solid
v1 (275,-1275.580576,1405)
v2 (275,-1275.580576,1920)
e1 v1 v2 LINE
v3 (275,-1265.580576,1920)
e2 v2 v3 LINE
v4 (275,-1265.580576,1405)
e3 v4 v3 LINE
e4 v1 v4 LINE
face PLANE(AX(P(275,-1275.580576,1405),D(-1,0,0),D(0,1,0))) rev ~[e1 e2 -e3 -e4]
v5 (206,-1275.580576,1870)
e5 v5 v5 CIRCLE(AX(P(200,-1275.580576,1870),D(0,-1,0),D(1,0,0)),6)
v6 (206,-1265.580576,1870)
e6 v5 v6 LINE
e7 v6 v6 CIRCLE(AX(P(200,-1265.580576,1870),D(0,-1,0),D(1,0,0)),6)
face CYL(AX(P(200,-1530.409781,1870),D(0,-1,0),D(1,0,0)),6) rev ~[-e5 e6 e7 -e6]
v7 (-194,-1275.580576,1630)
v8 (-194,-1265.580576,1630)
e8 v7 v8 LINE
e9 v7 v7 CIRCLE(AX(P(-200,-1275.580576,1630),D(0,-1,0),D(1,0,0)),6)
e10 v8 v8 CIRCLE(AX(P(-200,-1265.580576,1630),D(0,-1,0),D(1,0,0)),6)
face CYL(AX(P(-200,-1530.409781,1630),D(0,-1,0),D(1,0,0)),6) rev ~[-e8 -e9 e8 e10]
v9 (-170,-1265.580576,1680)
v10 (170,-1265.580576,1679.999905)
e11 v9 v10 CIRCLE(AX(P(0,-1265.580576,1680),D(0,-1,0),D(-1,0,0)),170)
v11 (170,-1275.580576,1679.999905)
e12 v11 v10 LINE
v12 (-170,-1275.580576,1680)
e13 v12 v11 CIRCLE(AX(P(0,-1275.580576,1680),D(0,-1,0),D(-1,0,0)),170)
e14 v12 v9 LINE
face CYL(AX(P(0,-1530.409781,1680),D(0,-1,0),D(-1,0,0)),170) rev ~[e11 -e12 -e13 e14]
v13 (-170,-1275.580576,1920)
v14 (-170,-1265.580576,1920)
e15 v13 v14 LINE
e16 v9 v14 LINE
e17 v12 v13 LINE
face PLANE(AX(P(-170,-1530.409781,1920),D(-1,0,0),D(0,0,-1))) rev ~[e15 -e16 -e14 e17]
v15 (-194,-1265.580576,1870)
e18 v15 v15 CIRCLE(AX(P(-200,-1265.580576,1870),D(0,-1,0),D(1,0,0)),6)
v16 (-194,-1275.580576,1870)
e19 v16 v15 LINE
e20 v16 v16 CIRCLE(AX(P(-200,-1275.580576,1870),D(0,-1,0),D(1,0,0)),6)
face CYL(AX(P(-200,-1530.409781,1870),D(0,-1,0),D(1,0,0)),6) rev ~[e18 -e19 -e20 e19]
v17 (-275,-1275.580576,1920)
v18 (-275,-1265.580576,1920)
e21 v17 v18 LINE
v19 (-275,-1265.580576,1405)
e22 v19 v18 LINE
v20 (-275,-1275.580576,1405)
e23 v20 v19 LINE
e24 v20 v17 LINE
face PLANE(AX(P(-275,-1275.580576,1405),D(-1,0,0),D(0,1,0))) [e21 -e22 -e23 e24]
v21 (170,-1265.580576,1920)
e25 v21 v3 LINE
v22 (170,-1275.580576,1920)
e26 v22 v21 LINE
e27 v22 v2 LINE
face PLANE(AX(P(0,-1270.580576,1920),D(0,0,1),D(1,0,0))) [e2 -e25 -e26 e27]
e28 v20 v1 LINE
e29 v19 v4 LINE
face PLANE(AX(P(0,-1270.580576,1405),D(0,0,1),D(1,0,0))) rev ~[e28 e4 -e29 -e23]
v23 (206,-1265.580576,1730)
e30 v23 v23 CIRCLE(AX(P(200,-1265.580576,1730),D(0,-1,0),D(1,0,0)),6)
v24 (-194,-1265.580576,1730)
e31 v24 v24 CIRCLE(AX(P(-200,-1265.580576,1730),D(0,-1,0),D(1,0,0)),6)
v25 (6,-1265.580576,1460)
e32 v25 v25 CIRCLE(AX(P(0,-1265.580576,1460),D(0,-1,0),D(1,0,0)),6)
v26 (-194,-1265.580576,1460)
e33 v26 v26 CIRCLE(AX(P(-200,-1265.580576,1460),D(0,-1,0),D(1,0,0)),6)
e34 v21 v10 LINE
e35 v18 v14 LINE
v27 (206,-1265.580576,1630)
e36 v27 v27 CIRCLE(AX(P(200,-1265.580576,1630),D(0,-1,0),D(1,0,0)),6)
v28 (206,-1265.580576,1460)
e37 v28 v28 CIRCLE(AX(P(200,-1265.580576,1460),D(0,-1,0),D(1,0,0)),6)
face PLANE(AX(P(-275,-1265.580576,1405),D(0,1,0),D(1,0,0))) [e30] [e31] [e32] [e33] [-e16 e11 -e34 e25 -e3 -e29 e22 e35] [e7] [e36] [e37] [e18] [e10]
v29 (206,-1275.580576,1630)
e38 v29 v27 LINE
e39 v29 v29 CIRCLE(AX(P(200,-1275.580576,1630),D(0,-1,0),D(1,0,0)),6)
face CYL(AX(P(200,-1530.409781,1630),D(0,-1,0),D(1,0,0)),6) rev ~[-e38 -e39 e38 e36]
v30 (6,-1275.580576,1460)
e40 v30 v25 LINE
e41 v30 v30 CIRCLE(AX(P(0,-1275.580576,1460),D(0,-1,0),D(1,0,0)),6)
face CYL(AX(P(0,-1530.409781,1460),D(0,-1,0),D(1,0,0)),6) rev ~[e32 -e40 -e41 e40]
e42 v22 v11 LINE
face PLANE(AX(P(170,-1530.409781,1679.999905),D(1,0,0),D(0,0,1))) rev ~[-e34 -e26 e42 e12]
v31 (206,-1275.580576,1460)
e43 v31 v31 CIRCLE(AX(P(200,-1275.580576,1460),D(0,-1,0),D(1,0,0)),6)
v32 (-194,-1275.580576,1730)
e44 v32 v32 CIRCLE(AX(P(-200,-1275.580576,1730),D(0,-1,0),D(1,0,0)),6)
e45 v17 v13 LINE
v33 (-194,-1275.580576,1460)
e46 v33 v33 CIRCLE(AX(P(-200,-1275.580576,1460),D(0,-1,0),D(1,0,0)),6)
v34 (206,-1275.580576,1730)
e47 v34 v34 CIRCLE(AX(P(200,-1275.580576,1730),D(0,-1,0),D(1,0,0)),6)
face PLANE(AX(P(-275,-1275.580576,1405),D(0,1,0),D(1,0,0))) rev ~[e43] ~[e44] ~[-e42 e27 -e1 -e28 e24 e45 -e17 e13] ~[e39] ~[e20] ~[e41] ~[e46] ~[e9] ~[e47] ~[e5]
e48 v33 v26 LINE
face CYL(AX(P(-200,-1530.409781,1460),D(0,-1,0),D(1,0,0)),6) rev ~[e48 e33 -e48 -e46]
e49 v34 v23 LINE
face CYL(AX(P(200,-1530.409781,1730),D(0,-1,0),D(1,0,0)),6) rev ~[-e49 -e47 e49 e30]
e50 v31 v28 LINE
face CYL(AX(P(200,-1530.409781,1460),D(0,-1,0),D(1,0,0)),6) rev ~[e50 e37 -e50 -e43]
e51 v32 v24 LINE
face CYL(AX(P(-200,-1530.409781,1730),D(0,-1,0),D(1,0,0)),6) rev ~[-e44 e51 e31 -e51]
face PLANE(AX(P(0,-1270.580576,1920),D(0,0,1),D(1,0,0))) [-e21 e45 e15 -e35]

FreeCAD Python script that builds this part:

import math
import FreeCAD as App
import Part
import Sketcher

doc = App.newDocument("Part")
body = doc.addObject("PartDesign::Body", "Body")
body.AllowCompound = True

sketch1 = doc.addObject("Sketcher::SketchObject", "Sketch")
body.addObject(sketch1)
sketch1.AttachmentSupport = (doc.XZ_Plane, [""])
sketch1.MapMode = "FlatFace"
sketch1.AttachmentOffset = App.Placement(App.Vector(0, 0, 1530.409781), App.Rotation())
sketch1.addGeometry([
    Part.Circle(App.Vector(-200, 1730, 0), App.Vector(0, 0, 1), 6),
    Part.Circle(App.Vector(-200, 1870, 0), App.Vector(0, 0, 1), 6),
    Part.Circle(App.Vector(200, 1870, 0), App.Vector(0, 0, 1), 6),
    Part.Circle(App.Vector(200, 1730, 0), App.Vector(0, 0, 1), 6),
    Part.Circle(App.Vector(-200, 1630, 0), App.Vector(0, 0, 1), 6),
    Part.Circle(App.Vector(-200, 1460, 0), App.Vector(0, 0, 1), 6),
    Part.Circle(App.Vector(200, 1630, 0), App.Vector(0, 0, 1), 6),
    Part.Circle(App.Vector(200, 1460, 0), App.Vector(0, 0, 1), 6),
    Part.Circle(App.Vector(0, 1460, 0), App.Vector(0, 0, 1), 6),
], False)
sketch1.addConstraint([
    Sketcher.Constraint("Equal", 0, 1),
    Sketcher.Constraint("Equal", 1, 2),
    Sketcher.Constraint("Equal", 2, 3),
    Sketcher.Constraint("Equal", 3, 4),
    Sketcher.Constraint("Equal", 4, 5),
    Sketcher.Constraint("Equal", 5, 6),
    Sketcher.Constraint("Equal", 6, 7),
    Sketcher.Constraint("Equal", 7, 8),
    Sketcher.Constraint("Symmetric", 1, 3, 2, 3, -2),
    Sketcher.Constraint("Symmetric", 0, 3, 3, 3, -2),
    Sketcher.Constraint("Symmetric", 4, 3, 6, 3, -2),
    Sketcher.Constraint("Symmetric", 5, 3, 7, 3, -2),
    Sketcher.Constraint("PointOnObject", 8, 3, -2),
    Sketcher.Constraint("Horizontal", 7, 3, 8, 3),
    Sketcher.Constraint("Vertical", 0, 3, 1, 3),
    Sketcher.Constraint("Vertical", 1, 3, 4, 3),
    Sketcher.Constraint("Vertical", 4, 3, 5, 3),
    Sketcher.Constraint("Diameter", 0, 12.0),
    Sketcher.Constraint("DistanceX", 0, 3, -1, 1, 200.0),
    Sketcher.Constraint("DistanceY", -1, 1, 0, 3, 1730.0),
    Sketcher.Constraint("DistanceY", -1, 1, 1, 3, 1870.0),
    Sketcher.Constraint("DistanceY", -1, 1, 4, 3, 1630.0),
    Sketcher.Constraint("DistanceY", -1, 1, 5, 3, 1460.0),
])
pad1 = doc.addObject("PartDesign::Pad", "Pad")
body.addObject(pad1)
pad1.Profile = sketch1
pad1.Length = 1000
pad1.Reversed = True
body2 = doc.addObject("PartDesign::Body", "Body001")

sketch2 = doc.addObject("Sketcher::SketchObject", "Sketch001")
body2.addObject(sketch2)
sketch2.AttachmentSupport = (doc.getObject("XZ_Plane001"), [""])
sketch2.MapMode = "FlatFace"
sketch2.AttachmentOffset = App.Placement(App.Vector(0, 0, 1530.409781), App.Rotation())
sketch2.addGeometry([
    Part.LineSegment(App.Vector(-170, 1920, 0), App.Vector(-170, 1680, 0)),
    Part.ArcOfCircle(Part.Circle(App.Vector(0, 1680, 0), App.Vector(0, 0, 1), 170), math.radians(180), math.radians(359.999968)),
    Part.LineSegment(App.Vector(170, 1679.999905, 0), App.Vector(170, 1920, 0)),
    Part.LineSegment(App.Vector(170, 1920, 0), App.Vector(-170, 1920, 0)),
], False)
sketch2.addConstraint([
    Sketcher.Constraint("Coincident", 0, 2, 1, 1),
    Sketcher.Constraint("Coincident", 1, 2, 2, 1),
    Sketcher.Constraint("Coincident", 2, 2, 3, 1),
    Sketcher.Constraint("Coincident", 3, 2, 0, 1),
    Sketcher.Constraint("Vertical", 0),
    Sketcher.Constraint("Vertical", 2),
    Sketcher.Constraint("Horizontal", 3),
    Sketcher.Constraint("PointOnObject", 1, 3, -2),
    Sketcher.Constraint("Radius", 1, 170.0),
    Sketcher.Constraint("DistanceY", 0, 2, 0, 1, 240.0),
    Sketcher.Constraint("DistanceY", -1, 1, 1, 3, 1680.0),
    Sketcher.Constraint("DistanceY", -1, 1, 0, 2, 1680.0),
    Sketcher.Constraint("DistanceY", 2, 1, 2, 2, 240.000095),
])
pad2 = doc.addObject("PartDesign::Pad", "Pad001")
body2.addObject(pad2)
pad2.Profile = sketch2
pad2.Length = 1000
pad2.Reversed = True
body3 = doc.addObject("PartDesign::Body", "Body002")

sketch3 = doc.addObject("Sketcher::SketchObject", "Sketch002")
body3.addObject(sketch3)
sketch3.AttachmentSupport = (doc.getObject("XY_Plane002"), [""])
sketch3.MapMode = "FlatFace"
sketch3.AttachmentOffset = App.Placement(App.Vector(0, 0, 1405), App.Rotation())
sketch3.addGeometry([
    Part.LineSegment(App.Vector(-275, -1266, 0), App.Vector(-275, -1276, 0)),
    Part.LineSegment(App.Vector(-275, -1276, 0), App.Vector(275, -1276, 0)),
    Part.LineSegment(App.Vector(275, -1276, 0), App.Vector(275, -1266, 0)),
    Part.LineSegment(App.Vector(275, -1266, 0), App.Vector(-275, -1266, 0)),
], False)
sketch3.addConstraint([
    Sketcher.Constraint("Coincident", 0, 2, 1, 1),
    Sketcher.Constraint("Coincident", 1, 2, 2, 1),
    Sketcher.Constraint("Coincident", 2, 2, 3, 1),
    Sketcher.Constraint("Coincident", 3, 2, 0, 1),
    Sketcher.Constraint("Vertical", 0),
    Sketcher.Constraint("Horizontal", 1),
    Sketcher.Constraint("Vertical", 2),
    Sketcher.Constraint("Horizontal", 3),
    Sketcher.Constraint("DistanceX", 1, 1, 1, 2, 550.0),
    Sketcher.Constraint("DistanceY", 0, 2, 0, 1, 10.0),
    Sketcher.Constraint("DistanceX", 0, 2, -1, 1, 275.0),
    Sketcher.Constraint("DistanceY", 0, 2, -1, 1, 1275.580576),
])
pad3 = doc.addObject("PartDesign::Pad", "Pad002")
body3.addObject(pad3)
pad3.Profile = sketch3
pad3.Length = 515
doc.recompute()

boolean = doc.addObject("PartDesign::Boolean", "Boolean")
body3.addObject(boolean)
boolean.Type = "Cut"
boolean.addObjects([body2])
doc.recompute()

boolean2 = doc.addObject("PartDesign::Boolean", "Boolean001")
body3.addObject(boolean2)
boolean2.Type = "Cut"
boolean2.addObjects([body])

doc.recompute()
